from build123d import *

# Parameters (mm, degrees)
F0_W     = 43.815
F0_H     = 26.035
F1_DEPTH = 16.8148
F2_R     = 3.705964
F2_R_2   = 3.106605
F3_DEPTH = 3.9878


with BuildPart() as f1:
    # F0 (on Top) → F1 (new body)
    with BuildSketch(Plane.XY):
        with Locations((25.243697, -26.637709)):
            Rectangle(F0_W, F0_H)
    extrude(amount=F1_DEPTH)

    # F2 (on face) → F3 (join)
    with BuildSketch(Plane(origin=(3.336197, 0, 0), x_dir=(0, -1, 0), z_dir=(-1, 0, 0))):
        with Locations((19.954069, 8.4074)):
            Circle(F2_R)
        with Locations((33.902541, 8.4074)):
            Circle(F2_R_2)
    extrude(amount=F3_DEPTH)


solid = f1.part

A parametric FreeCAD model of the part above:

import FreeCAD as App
import Part
import Sketcher
Q = App.Units.Quantity

doc = App.newDocument("Part")
body = doc.addObject("PartDesign::Body", "Body")

# Sketch on XY plane
sketch1 = body.newObject("Sketcher::SketchObject", "Sketch")
sketch1.AttachmentSupport = (doc.getObject("XY_Plane"), [""])
sketch1.MapMode = "FlatFace"
sketch1.addGeometry([
    Part.LineSegment(App.Vector(3.336197, -13.620209, 0), App.Vector(3.336197, -39.655209, 0)),
    Part.LineSegment(App.Vector(3.336197, -39.655209, 0), App.Vector(47.151197, -39.655209, 0)),
    Part.LineSegment(App.Vector(47.151197, -39.655209, 0), App.Vector(47.151197, -13.620209, 0)),
    Part.LineSegment(App.Vector(47.151197, -13.620209, 0), App.Vector(3.336197, -13.620209, 0)),
], False)
sketch1.addConstraint([
    Sketcher.Constraint("Coincident", 0, 2, 1, 1),
    Sketcher.Constraint("Coincident", 1, 2, 2, 1),
    Sketcher.Constraint("Coincident", 2, 2, 3, 1),
    Sketcher.Constraint("Coincident", 3, 2, 0, 1),
    Sketcher.Constraint("Vertical", 0),
    Sketcher.Constraint("Horizontal", 1),
    Sketcher.Constraint("Vertical", 2),
    Sketcher.Constraint("Horizontal", 3),
    Sketcher.Constraint("DistanceX", 1, 1, 1, 2, Q("1.725 in")),
    Sketcher.Constraint("DistanceY", 0, 2, 0, 1, Q("1.025 in")),
    Sketcher.Constraint("DistanceY", 0, 2, -1, 1, Q("39.655209 mm")),
    Sketcher.Constraint("DistanceX", -1, 1, 0, 2, Q("3.336197 mm")),
])
pad1 = body.newObject("PartDesign::Pad", "Pad")
pad1.Profile = sketch1
pad1.Length = Q("0.662 in")

# Sketch on YZ plane
sketch2 = body.newObject("Sketcher::SketchObject", "Sketch001")
sketch2.AttachmentSupport = (doc.getObject("YZ_Plane"), [""])
sketch2.MapMode = "FlatFace"
sketch2.AttachmentOffset = App.Placement(App.Vector(0, 0, 3.336197), App.Rotation())
sketch2.addGeometry([
    Part.Circle(App.Vector(-19.954069, 8.4074, 0), App.Vector(0, 0, 1), 3.705964),
    Part.Circle(App.Vector(-33.902541, 8.4074, 0), App.Vector(0, 0, 1), 3.106605),
], False)
sketch2.addConstraint([
    Sketcher.Constraint("Horizontal", 0, 3, 1, 3),
    Sketcher.Constraint("Diameter", 1, Q("6.21321 mm")),
    Sketcher.Constraint("DistanceY", -1, 1, 0, 3, Q("0.331 in")),
    Sketcher.Constraint("Diameter", 0, Q("7.411928 mm")),
    Sketcher.Constraint("DistanceX", 0, 3, -1, 1, Q("19.954069 mm")),
    Sketcher.Constraint("DistanceX", 1, 3, -1, 1, Q("33.902541 mm")),
])
pad2 = body.newObject("PartDesign::Pad", "Pad001")
pad2.Profile = sketch2
pad2.Length = Q("0.157 in")
pad2.Reversed = True

doc.recompute()
